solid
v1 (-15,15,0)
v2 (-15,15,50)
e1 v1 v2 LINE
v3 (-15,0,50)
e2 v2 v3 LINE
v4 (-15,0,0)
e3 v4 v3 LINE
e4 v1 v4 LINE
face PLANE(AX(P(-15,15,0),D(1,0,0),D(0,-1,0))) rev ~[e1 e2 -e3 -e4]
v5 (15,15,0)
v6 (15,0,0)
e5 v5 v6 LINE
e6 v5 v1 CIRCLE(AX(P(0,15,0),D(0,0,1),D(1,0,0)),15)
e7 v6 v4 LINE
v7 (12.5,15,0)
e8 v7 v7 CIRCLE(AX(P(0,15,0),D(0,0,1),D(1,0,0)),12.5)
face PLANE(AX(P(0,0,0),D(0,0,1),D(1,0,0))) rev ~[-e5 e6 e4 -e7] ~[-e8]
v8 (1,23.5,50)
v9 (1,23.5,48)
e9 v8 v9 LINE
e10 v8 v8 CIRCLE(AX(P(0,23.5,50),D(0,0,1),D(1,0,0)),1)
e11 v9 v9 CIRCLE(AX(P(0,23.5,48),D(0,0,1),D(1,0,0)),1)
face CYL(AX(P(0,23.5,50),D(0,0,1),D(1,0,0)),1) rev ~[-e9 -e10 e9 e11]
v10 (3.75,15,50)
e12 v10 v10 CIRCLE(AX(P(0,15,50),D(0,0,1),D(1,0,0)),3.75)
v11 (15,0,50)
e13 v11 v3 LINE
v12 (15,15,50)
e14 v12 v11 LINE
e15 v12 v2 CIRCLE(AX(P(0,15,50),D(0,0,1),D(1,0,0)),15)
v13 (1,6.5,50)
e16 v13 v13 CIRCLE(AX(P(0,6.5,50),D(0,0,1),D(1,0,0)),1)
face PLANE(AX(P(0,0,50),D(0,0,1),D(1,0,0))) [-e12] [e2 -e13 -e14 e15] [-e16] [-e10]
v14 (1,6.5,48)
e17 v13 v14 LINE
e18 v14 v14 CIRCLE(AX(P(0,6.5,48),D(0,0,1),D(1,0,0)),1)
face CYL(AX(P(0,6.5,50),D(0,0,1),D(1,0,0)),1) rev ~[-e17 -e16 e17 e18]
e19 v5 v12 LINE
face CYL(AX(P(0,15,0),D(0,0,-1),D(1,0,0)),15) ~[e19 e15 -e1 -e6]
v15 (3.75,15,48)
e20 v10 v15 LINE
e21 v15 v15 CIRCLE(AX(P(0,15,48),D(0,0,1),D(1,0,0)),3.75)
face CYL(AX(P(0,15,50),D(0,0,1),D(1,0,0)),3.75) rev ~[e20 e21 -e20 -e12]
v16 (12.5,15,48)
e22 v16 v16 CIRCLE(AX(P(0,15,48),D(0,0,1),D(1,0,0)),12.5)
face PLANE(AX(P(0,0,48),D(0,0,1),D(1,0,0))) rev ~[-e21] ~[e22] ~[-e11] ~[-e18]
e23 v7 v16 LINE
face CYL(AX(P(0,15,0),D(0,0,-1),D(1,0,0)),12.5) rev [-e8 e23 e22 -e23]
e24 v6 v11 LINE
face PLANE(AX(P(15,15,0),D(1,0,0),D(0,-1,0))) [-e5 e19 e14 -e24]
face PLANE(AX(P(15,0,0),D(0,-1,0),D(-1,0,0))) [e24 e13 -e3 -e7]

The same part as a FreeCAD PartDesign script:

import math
import FreeCAD as App
import Part
import Sketcher
from FreeCAD import Vector
Q = App.Units.Quantity

doc = App.newDocument("Part")
body = doc.addObject("PartDesign::Body", "Body")

# Sketch on XY plane
sketch1 = doc.addObject("Sketcher::SketchObject", "Sketch")
body.addObject(sketch1)
sketch1.AttachmentSupport = (doc.XY_Plane, [""])
sketch1.MapMode = "FlatFace"
sketch1.addGeometry(Part.LineSegment(Vector(15, 0, 0), Vector(15, 15, 0)), False)
sketch1.addGeometry(Part.ArcOfCircle(Part.Circle(Vector(0, 15, 0), Vector(0, 0, 1), 15), math.radians(0), math.radians(180)), False)
sketch1.addGeometry(Part.LineSegment(Vector(-15, 15, 0), Vector(-15, 0, 0)), False)
sketch1.addGeometry(Part.LineSegment(Vector(-15, 0, 0), Vector(15, 0, 0)), False)
sketch1.addGeometry(Part.Circle(Vector(0, 15, 0), Vector(0, 0, 1), 12), False)
sketch1.addConstraint(Sketcher.Constraint("Tangent", 0, 2, 1, 1))
sketch1.addConstraint(Sketcher.Constraint("Tangent", 1, 2, 2, 1))
sketch1.addConstraint(Sketcher.Constraint("Coincident", 2, 2, 3, 1))
sketch1.addConstraint(Sketcher.Constraint("Coincident", 3, 2, 0, 1))
sketch1.addConstraint(Sketcher.Constraint("Vertical", 0))
sketch1.addConstraint(Sketcher.Constraint("Vertical", 2))
sketch1.addConstraint(Sketcher.Constraint("Horizontal", 3))
sketch1.addConstraint(Sketcher.Constraint("Coincident", 4, 3, 1, 3))
sketch1.addConstraint(Sketcher.Constraint("Symmetric", 2, 2, 3, 2, -1, 1))
sketch1.addConstraint(Sketcher.Constraint("Diameter", 4, Q("25 mm")))
sketch1.addConstraint(Sketcher.Constraint("Radius", 1, Q("15 mm")))
sketch1.addConstraint(Sketcher.Constraint("DistanceY", 0, 1, 0, 2, Q("15 mm")))
pad1 = doc.addObject("PartDesign::Pad", "Pad")
body.addObject(pad1)
pad1.Profile = sketch1
pad1.Length = 50

# Sketch on XY plane
sketch2 = doc.addObject("Sketcher::SketchObject", "Sketch001")
body.addObject(sketch2)
sketch2.AttachmentSupport = (doc.XY_Plane, [""])
sketch2.MapMode = "FlatFace"
sketch2.AttachmentOffset = App.Placement(Vector(0, 0, 50), App.Rotation())
sketch2.addGeometry(Part.Circle(Vector(0, 15, 0), Vector(0, 0, 1), 12), False)
sketch2.addConstraint(Sketcher.Constraint("PointOnObject", 0, 3, -2))
sketch2.addConstraint(Sketcher.Constraint("Diameter", 0, Q("25 mm")))
sketch2.addConstraint(Sketcher.Constraint("DistanceY", -1, 1, 0, 3, Q("15 mm")))
pad2 = doc.addObject("PartDesign::Pad", "Pad001")
body.addObject(pad2)
pad2.Profile = sketch2
pad2.Length = 2
pad2.Reversed = True

# Sketch on XY plane
sketch3 = doc.addObject("Sketcher::SketchObject", "Sketch002")
body.addObject(sketch3)
sketch3.AttachmentSupport = (doc.XY_Plane, [""])
sketch3.MapMode = "FlatFace"
sketch3.AttachmentOffset = App.Placement(Vector(0, 0, 50), App.Rotation())
sketch3.addGeometry(Part.Circle(Vector(0, 23.5, 0), Vector(0, 0, 1), 1), False)
sketch3.addGeometry(Part.Circle(Vector(0, 6.5, 0), Vector(0, 0, 1), 1), False)
sketch3.addGeometry(Part.Circle(Vector(0, 15, 0), Vector(0, 0, 1), 3.8), False)
sketch3.addConstraint(Sketcher.Constraint("Equal", 0, 1))
sketch3.addConstraint(Sketcher.Constraint("PointOnObject", 0, 3, -2))
sketch3.addConstraint(Sketcher.Constraint("PointOnObject", 1, 3, -2))
sketch3.addConstraint(Sketcher.Constraint("PointOnObject", 2, 3, -2))
sketch3.addConstraint(Sketcher.Constraint("Diameter", 0, Q("2 mm")))
sketch3.addConstraint(Sketcher.Constraint("Diameter", 2, Q("7.5 mm")))
sketch3.addConstraint(Sketcher.Constraint("DistanceY", 1, 3, 0, 3, Q("17 mm")))
sketch3.addConstraint(Sketcher.Constraint("DistanceY", 2, 3, 0, 3, Q("8.5 mm")))
sketch3.addConstraint(Sketcher.Constraint("DistanceY", -1, 1, 2, 3, Q("15 mm")))
pocket1 = doc.addObject("PartDesign::Pocket", "Pocket")
body.addObject(pocket1)
pocket1.Profile = sketch3
pocket1.Length = 2.5

doc.recompute()
